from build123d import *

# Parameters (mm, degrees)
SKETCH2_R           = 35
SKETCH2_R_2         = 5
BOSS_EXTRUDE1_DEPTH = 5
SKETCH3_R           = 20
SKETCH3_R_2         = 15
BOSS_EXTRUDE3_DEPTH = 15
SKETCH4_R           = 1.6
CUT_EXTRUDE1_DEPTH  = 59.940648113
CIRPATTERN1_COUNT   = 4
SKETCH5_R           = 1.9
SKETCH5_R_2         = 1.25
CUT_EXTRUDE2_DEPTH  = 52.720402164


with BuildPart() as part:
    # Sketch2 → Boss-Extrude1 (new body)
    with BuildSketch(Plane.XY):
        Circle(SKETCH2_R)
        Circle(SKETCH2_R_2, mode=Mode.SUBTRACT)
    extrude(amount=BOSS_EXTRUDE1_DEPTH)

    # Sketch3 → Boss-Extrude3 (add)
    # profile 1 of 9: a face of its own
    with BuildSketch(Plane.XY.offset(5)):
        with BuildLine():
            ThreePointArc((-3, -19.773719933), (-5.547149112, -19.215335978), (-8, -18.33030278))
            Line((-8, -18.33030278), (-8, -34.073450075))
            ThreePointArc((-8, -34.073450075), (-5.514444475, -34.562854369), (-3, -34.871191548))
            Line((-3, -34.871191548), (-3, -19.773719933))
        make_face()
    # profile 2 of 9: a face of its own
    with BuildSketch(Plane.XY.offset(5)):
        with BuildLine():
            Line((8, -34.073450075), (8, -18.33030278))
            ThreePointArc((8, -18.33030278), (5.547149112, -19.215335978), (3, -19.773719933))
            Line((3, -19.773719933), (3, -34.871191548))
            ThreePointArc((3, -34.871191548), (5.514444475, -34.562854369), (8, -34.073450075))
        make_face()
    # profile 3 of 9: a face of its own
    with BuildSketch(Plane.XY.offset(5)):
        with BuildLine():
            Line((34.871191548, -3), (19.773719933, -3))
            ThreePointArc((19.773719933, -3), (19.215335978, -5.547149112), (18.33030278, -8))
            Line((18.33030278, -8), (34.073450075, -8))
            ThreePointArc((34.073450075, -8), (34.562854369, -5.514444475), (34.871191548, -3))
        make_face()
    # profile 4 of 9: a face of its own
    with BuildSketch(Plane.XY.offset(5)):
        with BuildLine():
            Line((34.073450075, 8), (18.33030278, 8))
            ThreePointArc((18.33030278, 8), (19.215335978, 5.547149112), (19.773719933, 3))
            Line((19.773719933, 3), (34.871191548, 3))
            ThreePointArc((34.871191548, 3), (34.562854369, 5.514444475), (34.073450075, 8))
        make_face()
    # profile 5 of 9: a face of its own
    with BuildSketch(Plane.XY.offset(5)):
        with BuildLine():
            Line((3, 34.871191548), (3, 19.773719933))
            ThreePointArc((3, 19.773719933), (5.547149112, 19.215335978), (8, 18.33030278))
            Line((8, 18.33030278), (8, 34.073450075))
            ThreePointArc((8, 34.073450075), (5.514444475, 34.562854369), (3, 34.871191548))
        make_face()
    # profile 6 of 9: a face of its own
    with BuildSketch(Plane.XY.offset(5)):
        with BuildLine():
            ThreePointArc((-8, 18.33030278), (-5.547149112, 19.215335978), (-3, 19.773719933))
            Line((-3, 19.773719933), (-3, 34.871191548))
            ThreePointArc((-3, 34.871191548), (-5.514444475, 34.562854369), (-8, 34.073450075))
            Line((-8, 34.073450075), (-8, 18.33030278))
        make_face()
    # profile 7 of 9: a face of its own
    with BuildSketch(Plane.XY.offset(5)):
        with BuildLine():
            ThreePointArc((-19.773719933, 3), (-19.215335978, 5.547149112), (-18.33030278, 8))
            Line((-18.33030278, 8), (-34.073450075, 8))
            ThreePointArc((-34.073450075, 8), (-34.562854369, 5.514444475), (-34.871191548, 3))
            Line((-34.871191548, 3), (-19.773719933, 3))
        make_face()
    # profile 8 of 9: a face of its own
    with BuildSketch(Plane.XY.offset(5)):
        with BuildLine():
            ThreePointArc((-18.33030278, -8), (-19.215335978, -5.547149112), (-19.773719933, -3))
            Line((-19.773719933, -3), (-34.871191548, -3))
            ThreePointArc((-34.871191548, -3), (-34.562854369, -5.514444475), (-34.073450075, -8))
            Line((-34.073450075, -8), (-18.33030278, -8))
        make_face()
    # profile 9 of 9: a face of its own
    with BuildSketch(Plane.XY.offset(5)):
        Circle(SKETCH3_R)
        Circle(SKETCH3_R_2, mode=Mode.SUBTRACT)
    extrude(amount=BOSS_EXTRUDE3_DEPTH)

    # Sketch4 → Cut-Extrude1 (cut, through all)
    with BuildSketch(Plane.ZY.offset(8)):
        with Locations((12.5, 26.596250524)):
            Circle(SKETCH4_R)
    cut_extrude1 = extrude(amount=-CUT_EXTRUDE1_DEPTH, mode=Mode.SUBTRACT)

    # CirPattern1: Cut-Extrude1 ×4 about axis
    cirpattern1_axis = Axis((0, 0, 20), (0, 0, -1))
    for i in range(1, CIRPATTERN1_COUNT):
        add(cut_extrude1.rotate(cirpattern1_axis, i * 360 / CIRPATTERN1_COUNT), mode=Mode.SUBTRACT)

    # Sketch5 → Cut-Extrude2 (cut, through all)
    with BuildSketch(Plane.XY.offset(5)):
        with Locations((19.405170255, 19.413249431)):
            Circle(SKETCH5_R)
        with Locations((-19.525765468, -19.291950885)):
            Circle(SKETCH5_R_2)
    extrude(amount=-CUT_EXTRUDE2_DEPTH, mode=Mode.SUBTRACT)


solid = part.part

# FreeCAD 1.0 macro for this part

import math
import FreeCAD as App
import Part
import Sketcher

doc = App.newDocument("Part")
body = doc.addObject("PartDesign::Body", "Body")

sketch1 = doc.addObject("Sketcher::SketchObject", "Sketch")
body.addObject(sketch1)
sketch1.AttachmentSupport = (doc.XY_Plane, [""])
sketch1.MapMode = "FlatFace"
sketch1.addGeometry([
    Part.Circle(App.Vector(0, 0, 0), App.Vector(0, 0, 1), 35),
    Part.Circle(App.Vector(0, 0, 0), App.Vector(0, 0, 1), 5),
], False)
sketch1.addConstraint([
    Sketcher.Constraint("Coincident", 0, 3, -1, 1),
    Sketcher.Constraint("Coincident", 1, 3, -1, 1),
    Sketcher.Constraint("Diameter", 0, 70.0),
    Sketcher.Constraint("Diameter", 1, 10.0),
])
pad1 = doc.addObject("PartDesign::Pad", "Pad")
body.addObject(pad1)
pad1.Profile = sketch1
pad1.Length = 5

sketch2 = doc.addObject("Sketcher::SketchObject", "Sketch001")
body.addObject(sketch2)
sketch2.AttachmentSupport = (doc.XY_Plane, [""])
sketch2.MapMode = "FlatFace"
sketch2.AttachmentOffset = App.Placement(App.Vector(0, 0, 5), App.Rotation())
sketch2.addGeometry([
    Part.LineSegment(App.Vector(-8, -18, 0), App.Vector(-8, -34, 0)),
    Part.ArcOfCircle(Part.Circle(App.Vector(0, 0, 0), App.Vector(0, 0, 1), 35), math.radians(-103.21), math.radians(-94.92)),
    Part.LineSegment(App.Vector(-3, -35, 0), App.Vector(-3, -20, 0)),
    Part.ArcOfCircle(Part.Circle(App.Vector(0, 0, 0), App.Vector(0, 0, 1), 20), math.radians(-98.63), math.radians(-81.37)),
    Part.LineSegment(App.Vector(3, -20, 0), App.Vector(3, -35, 0)),
    Part.ArcOfCircle(Part.Circle(App.Vector(0, 0, 0), App.Vector(0, 0, 1), 35), math.radians(-85.08), math.radians(-76.79)),
    Part.LineSegment(App.Vector(8, -34, 0), App.Vector(8, -18, 0)),
    Part.ArcOfCircle(Part.Circle(App.Vector(0, 0, 0), App.Vector(0, 0, 1), 20), math.radians(-66), math.radians(-24)),
    Part.LineSegment(App.Vector(18, -8, 0), App.Vector(34, -8, 0)),
    Part.ArcOfCircle(Part.Circle(App.Vector(0, 0, 0), App.Vector(0, 0, 1), 35), math.radians(-13.21), math.radians(-4.92)),
    Part.LineSegment(App.Vector(35, -3, 0), App.Vector(20, -3, 0)),
    Part.ArcOfCircle(Part.Circle(App.Vector(0, 0, 0), App.Vector(0, 0, 1), 20), math.radians(-8.63), math.radians(8.63)),
    Part.LineSegment(App.Vector(20, 3, 0), App.Vector(35, 3, 0)),
    Part.ArcOfCircle(Part.Circle(App.Vector(0, 0, 0), App.Vector(0, 0, 1), 35), math.radians(4.92), math.radians(13.21)),
    Part.LineSegment(App.Vector(34, 8, 0), App.Vector(18, 8, 0)),
    Part.ArcOfCircle(Part.Circle(App.Vector(0, 0, 0), App.Vector(0, 0, 1), 20), math.radians(24), math.radians(66)),
    Part.LineSegment(App.Vector(8, 18, 0), App.Vector(8, 34, 0)),
    Part.ArcOfCircle(Part.Circle(App.Vector(0, 0, 0), App.Vector(0, 0, 1), 35), math.radians(76.79), math.radians(85.08)),
    Part.LineSegment(App.Vector(3, 35, 0), App.Vector(3, 20, 0)),
    Part.ArcOfCircle(Part.Circle(App.Vector(0, 0, 0), App.Vector(0, 0, 1), 20), math.radians(81.37), math.radians(98.63)),
    Part.LineSegment(App.Vector(-3, 20, 0), App.Vector(-3, 35, 0)),
    Part.ArcOfCircle(Part.Circle(App.Vector(0, 0, 0), App.Vector(0, 0, 1), 35), math.radians(94.92), math.radians(103.21)),
    Part.LineSegment(App.Vector(-8, 34, 0), App.Vector(-8, 18, 0)),
    Part.ArcOfCircle(Part.Circle(App.Vector(0, 0, 0), App.Vector(0, 0, 1), 20), math.radians(114), math.radians(156)),
    Part.LineSegment(App.Vector(-18, 8, 0), App.Vector(-34, 8, 0)),
    Part.ArcOfCircle(Part.Circle(App.Vector(0, 0, 0), App.Vector(0, 0, 1), 35), math.radians(166.79), math.radians(175.08)),
    Part.LineSegment(App.Vector(-35, 3, 0), App.Vector(-20, 3, 0)),
    Part.ArcOfCircle(Part.Circle(App.Vector(0, 0, 0), App.Vector(0, 0, 1), 20), math.radians(171.37), math.radians(188.63)),
    Part.LineSegment(App.Vector(-20, -3, 0), App.Vector(-35, -3, 0)),
    Part.ArcOfCircle(Part.Circle(App.Vector(0, 0, 0), App.Vector(0, 0, 1), 35), math.radians(-175.08), math.radians(-166.79)),
    Part.LineSegment(App.Vector(-34, -8, 0), App.Vector(-18, -8, 0)),
    Part.ArcOfCircle(Part.Circle(App.Vector(0, 0, 0), App.Vector(0, 0, 1), 20), math.radians(-156), math.radians(-114)),
    Part.Circle(App.Vector(0, 0, 0), App.Vector(0, 0, 1), 15),
], False)
sketch2.addConstraint([
    Sketcher.Constraint("Coincident", 0, 2, 1, 1),
    Sketcher.Constraint("Coincident", 1, 2, 2, 1),
    Sketcher.Constraint("Coincident", 2, 2, 3, 1),
    Sketcher.Constraint("Coincident", 3, 2, 4, 1),
    Sketcher.Constraint("Coincident", 4, 2, 5, 1),
    Sketcher.Constraint("Coincident", 5, 2, 6, 1),
    Sketcher.Constraint("Coincident", 6, 2, 7, 1),
    Sketcher.Constraint("Coincident", 7, 2, 8, 1),
    Sketcher.Constraint("Coincident", 8, 2, 9, 1),
    Sketcher.Constraint("Coincident", 9, 2, 10, 1),
    Sketcher.Constraint("Coincident", 10, 2, 11, 1),
    Sketcher.Constraint("Coincident", 11, 2, 12, 1),
    Sketcher.Constraint("Coincident", 12, 2, 13, 1),
    Sketcher.Constraint("Coincident", 13, 2, 14, 1),
    Sketcher.Constraint("Coincident", 14, 2, 15, 1),
    Sketcher.Constraint("Coincident", 15, 2, 16, 1),
    Sketcher.Constraint("Coincident", 16, 2, 17, 1),
    Sketcher.Constraint("Coincident", 17, 2, 18, 1),
    Sketcher.Constraint("Coincident", 18, 2, 19, 1),
    Sketcher.Constraint("Coincident", 19, 2, 20, 1),
    Sketcher.Constraint("Coincident", 20, 2, 21, 1),
    Sketcher.Constraint("Coincident", 21, 2, 22, 1),
    Sketcher.Constraint("Coincident", 22, 2, 23, 1),
    Sketcher.Constraint("Coincident", 23, 2, 24, 1),
    Sketcher.Constraint("Coincident", 24, 2, 25, 1),
    Sketcher.Constraint("Coincident", 25, 2, 26, 1),
    Sketcher.Constraint("Coincident", 26, 2, 27, 1),
    Sketcher.Constraint("Coincident", 27, 2, 28, 1),
    Sketcher.Constraint("Coincident", 28, 2, 29, 1),
    Sketcher.Constraint("Coincident", 29, 2, 30, 1),
    Sketcher.Constraint("Coincident", 30, 2, 31, 1),
    Sketcher.Constraint("Coincident", 31, 2, 0, 1),
    Sketcher.Constraint("Vertical", 0),
    Sketcher.Constraint("Vertical", 2),
    Sketcher.Constraint("Vertical", 4),
    Sketcher.Constraint("Vertical", 6),
    Sketcher.Constraint("Horizontal", 8),
    Sketcher.Constraint("Horizontal", 10),
    Sketcher.Constraint("Horizontal", 12),
    Sketcher.Constraint("Horizontal", 14),
    Sketcher.Constraint("Vertical", 16),
    Sketcher.Constraint("Vertical", 18),
    Sketcher.Constraint("Vertical", 20),
    Sketcher.Constraint("Vertical", 22),
    Sketcher.Constraint("Horizontal", 24),
    Sketcher.Constraint("Horizontal", 26),
    Sketcher.Constraint("Horizontal", 28),
    Sketcher.Constraint("Horizontal", 30),
    Sketcher.Constraint("Coincident", 1, 3, -1, 1),
    Sketcher.Constraint("Coincident", 3, 3, -1, 1),
    Sketcher.Constraint("Coincident", 5, 3, -1, 1),
    Sketcher.Constraint("Coincident", 7, 3, -1, 1),
    Sketcher.Constraint("Coincident", 9, 3, -1, 1),
    Sketcher.Constraint("Coincident", 11, 3, -1, 1),
    Sketcher.Constraint("Coincident", 13, 3, -1, 1),
    Sketcher.Constraint("Coincident", 15, 3, -1, 1),
    Sketcher.Constraint("Coincident", 17, 3, -1, 1),
    Sketcher.Constraint("Coincident", 19, 3, -1, 1),
    Sketcher.Constraint("Coincident", 21, 3, -1, 1),
    Sketcher.Constraint("Coincident", 23, 3, -1, 1),
    Sketcher.Constraint("Coincident", 25, 3, -1, 1),
    Sketcher.Constraint("Coincident", 27, 3, -1, 1),
    Sketcher.Constraint("Coincident", 29, 3, -1, 1),
    Sketcher.Constraint("Coincident", 31, 3, -1, 1),
    Sketcher.Constraint("Coincident", 32, 3, -1, 1),
    Sketcher.Constraint("Equal", 1, 5),
    Sketcher.Constraint("Equal", 3, 7),
    Sketcher.Constraint("Equal", 5, 9),
    Sketcher.Constraint("Equal", 7, 11),
    Sketcher.Constraint("Equal", 9, 13),
    Sketcher.Constraint("Equal", 11, 15),
    Sketcher.Constraint("Equal", 13, 17),
    Sketcher.Constraint("Equal", 15, 19),
    Sketcher.Constraint("Equal", 17, 21),
    Sketcher.Constraint("Equal", 19, 23),
    Sketcher.Constraint("Equal", 21, 25),
    Sketcher.Constraint("Equal", 23, 27),
    Sketcher.Constraint("Equal", 25, 29),
    Sketcher.Constraint("Equal", 27, 31),
    Sketcher.Constraint("Horizontal", 2, 2, 3, 2),
    Sketcher.Constraint("Horizontal", 0, 2, 5, 2),
    Sketcher.Constraint("Horizontal", 18, 2, 19, 2),
    Sketcher.Constraint("Horizontal", 16, 2, 21, 2),
    Sketcher.Constraint("Horizontal", 14, 2, 23, 2),
    Sketcher.Constraint("Horizontal", 12, 2, 25, 2),
    Sketcher.Constraint("Horizontal", 10, 2, 27, 2),
    Sketcher.Constraint("Horizontal", 8, 2, 29, 2),
    Sketcher.Constraint("Vertical", 10, 2, 11, 2),
    Sketcher.Constraint("Vertical", 8, 2, 13, 2),
    Sketcher.Constraint("Vertical", 6, 2, 15, 2),
    Sketcher.Constraint("Vertical", 4, 2, 17, 2),
    Sketcher.Constraint("Equal", 30, 0),
    Sketcher.Constraint("Equal", 28, 2),
    Sketcher.Constraint("Diameter", 32, 30.0),
    Sketcher.Constraint("Radius", 1, 35.0),
    Sketcher.Constraint("Radius", 3, 20.0),
    Sketcher.Constraint("DistanceX", 0, 2, -1, 1, 8.0),
    Sketcher.Constraint("DistanceX", 1, 2, -1, 1, 3.0),
])
pad2 = doc.addObject("PartDesign::Pad", "Pad001")
body.addObject(pad2)
pad2.Profile = sketch2
pad2.Length = 15

sketch3 = doc.addObject("Sketcher::SketchObject", "Sketch002")
body.addObject(sketch3)
sketch3.AttachmentSupport = (doc.YZ_Plane, [""])
sketch3.MapMode = "FlatFace"
sketch3.AttachmentOffset = App.Placement(App.Vector(0, 0, -8), App.Rotation())
sketch3.addGeometry(Part.Circle(App.Vector(26.6, 12.5, 0), App.Vector(0, 0, 1), 1.6), False)
sketch3.addConstraint([
    Sketcher.Constraint("Diameter", 0, 3.2),
    Sketcher.Constraint("DistanceY", -1, 1, 0, 3, 12.5),
    Sketcher.Constraint("DistanceX", -1, 1, 0, 3, 26.596251),
])
pocket1 = doc.addObject("PartDesign::Pocket", "Pocket")
body.addObject(pocket1)
pocket1.Profile = sketch3
pocket1.Type = "ThroughAll"
pocket1.Reversed = True
doc.recompute()

polarpattern = doc.addObject("PartDesign::PolarPattern", "PolarPattern")
body.addObject(polarpattern)
polarpattern.Originals = [pocket1]
polarpattern.Axis = (doc.Z_Axis, [""])
polarpattern.Angle = 360
polarpattern.Occurrences = 4
body.Tip = polarpattern

sketch4 = doc.addObject("Sketcher::SketchObject", "Sketch003")
body.addObject(sketch4)
sketch4.AttachmentSupport = (doc.XY_Plane, [""])
sketch4.MapMode = "FlatFace"
sketch4.AttachmentOffset = App.Placement(App.Vector(0, 0, 5), App.Rotation())
sketch4.addGeometry([
    Part.Circle(App.Vector(19.4, 19.4, 0), App.Vector(0, 0, 1), 1.9),
    Part.Circle(App.Vector(-19.5, -19.3, 0), App.Vector(0, 0, 1), 1.2),
], False)
sketch4.addConstraint([
    Sketcher.Constraint("Diameter", 0, 3.8),
    Sketcher.Constraint("Diameter", 1, 2.5),
    Sketcher.Constraint("DistanceY", 1, 3, 0, 3, 38.7052),
    Sketcher.Constraint("DistanceX", -1, 1, 0, 3, 19.40517),
    Sketcher.Constraint("DistanceY", -1, 1, 0, 3, 19.413249),
    Sketcher.Constraint("DistanceX", 1, 3, -1, 1, 19.525765),
])
pocket2 = doc.addObject("PartDesign::Pocket", "Pocket001")
body.addObject(pocket2)
pocket2.Profile = sketch4
pocket2.Type = "ThroughAll"

doc.recompute()
